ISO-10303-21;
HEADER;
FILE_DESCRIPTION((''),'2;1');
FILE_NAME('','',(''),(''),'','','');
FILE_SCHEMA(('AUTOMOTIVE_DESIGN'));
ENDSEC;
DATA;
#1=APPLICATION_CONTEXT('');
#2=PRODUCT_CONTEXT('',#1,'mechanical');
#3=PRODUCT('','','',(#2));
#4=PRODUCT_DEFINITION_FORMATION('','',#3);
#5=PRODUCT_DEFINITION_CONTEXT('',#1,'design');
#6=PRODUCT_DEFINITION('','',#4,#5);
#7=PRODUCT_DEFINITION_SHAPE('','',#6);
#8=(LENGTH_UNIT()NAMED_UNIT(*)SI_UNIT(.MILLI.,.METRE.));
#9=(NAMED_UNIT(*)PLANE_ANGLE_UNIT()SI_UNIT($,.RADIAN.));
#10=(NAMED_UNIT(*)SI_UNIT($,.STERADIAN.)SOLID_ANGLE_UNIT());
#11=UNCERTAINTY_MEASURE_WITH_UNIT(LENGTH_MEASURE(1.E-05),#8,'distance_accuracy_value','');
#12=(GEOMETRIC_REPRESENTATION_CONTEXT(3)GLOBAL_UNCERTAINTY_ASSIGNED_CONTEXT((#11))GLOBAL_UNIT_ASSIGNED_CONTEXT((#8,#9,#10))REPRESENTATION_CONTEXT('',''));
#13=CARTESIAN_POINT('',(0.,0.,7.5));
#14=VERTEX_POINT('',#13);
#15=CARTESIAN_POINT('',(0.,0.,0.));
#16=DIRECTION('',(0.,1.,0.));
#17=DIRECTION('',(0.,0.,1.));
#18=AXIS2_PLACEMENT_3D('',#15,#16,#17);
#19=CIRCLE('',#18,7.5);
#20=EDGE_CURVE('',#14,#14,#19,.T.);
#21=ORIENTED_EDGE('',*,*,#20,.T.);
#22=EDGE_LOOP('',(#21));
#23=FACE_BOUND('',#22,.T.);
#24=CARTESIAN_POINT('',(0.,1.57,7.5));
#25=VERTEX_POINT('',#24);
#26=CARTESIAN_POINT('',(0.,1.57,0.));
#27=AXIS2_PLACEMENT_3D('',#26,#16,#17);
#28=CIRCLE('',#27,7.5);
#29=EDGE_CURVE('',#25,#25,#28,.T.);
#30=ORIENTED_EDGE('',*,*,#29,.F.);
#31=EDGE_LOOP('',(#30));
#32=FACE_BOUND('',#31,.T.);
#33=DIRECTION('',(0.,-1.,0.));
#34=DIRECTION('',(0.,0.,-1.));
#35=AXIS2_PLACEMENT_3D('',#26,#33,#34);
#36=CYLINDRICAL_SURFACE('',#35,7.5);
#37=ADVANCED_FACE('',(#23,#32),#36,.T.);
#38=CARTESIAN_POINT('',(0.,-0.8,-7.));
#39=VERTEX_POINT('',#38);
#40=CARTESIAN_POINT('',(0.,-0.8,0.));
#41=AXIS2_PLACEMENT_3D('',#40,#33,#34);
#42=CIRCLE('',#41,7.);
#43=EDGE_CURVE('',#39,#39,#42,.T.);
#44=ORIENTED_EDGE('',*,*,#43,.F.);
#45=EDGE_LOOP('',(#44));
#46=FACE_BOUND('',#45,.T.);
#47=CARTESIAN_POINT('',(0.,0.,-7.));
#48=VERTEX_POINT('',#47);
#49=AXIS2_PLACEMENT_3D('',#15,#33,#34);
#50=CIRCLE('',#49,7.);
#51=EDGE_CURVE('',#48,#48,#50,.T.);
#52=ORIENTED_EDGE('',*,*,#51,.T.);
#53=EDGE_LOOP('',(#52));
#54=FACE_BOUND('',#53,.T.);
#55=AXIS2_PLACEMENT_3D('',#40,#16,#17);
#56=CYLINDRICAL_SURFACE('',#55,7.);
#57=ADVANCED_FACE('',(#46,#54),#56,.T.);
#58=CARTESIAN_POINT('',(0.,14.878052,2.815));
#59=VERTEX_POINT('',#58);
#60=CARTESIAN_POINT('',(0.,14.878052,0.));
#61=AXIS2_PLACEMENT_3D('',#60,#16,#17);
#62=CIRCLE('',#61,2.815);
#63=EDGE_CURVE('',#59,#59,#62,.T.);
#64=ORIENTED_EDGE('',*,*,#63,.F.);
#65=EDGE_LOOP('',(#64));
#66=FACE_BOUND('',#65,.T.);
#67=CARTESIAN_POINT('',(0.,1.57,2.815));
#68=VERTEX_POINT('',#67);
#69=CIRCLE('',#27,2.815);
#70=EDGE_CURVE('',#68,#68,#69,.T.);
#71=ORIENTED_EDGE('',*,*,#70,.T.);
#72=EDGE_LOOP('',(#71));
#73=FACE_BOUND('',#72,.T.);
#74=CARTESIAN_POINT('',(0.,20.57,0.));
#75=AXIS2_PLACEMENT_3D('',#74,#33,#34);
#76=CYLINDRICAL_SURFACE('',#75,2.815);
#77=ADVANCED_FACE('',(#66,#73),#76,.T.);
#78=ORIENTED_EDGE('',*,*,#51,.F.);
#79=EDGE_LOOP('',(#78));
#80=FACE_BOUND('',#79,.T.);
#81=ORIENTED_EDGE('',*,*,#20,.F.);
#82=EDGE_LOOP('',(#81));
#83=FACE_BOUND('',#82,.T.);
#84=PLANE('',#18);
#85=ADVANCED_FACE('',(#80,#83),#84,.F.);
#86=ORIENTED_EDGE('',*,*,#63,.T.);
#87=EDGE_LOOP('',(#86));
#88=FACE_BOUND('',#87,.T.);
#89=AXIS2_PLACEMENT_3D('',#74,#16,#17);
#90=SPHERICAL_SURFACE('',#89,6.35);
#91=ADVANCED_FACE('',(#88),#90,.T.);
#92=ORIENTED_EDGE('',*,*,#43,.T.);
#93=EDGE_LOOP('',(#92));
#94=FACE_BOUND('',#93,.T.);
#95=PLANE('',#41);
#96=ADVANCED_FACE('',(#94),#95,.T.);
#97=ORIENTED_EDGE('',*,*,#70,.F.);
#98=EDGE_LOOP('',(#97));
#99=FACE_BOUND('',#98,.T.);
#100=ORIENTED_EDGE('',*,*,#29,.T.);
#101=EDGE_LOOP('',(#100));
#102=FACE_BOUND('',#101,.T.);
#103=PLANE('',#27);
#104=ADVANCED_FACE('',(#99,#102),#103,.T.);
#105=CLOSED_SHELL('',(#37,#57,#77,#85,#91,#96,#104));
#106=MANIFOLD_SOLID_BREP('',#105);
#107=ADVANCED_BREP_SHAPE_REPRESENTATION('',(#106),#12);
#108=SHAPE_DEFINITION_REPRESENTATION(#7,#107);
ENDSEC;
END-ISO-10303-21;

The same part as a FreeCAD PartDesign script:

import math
import FreeCAD as App
import Part
import Sketcher

doc = App.newDocument("Part")
body = doc.addObject("PartDesign::Body", "Body")

sketch1 = body.newObject("Sketcher::SketchObject", "Sketch")
sketch1.AttachmentSupport = (doc.getObject("XZ_Plane"), [""])
sketch1.MapMode = "FlatFace"
sketch1.addGeometry(Part.Circle(App.Vector(0, 0, 0), App.Vector(0, 0, 1), 7.5), False)
sketch1.addConstraint(Sketcher.Constraint("Coincident", 0, 3, -1, 1))
sketch1.addConstraint(Sketcher.Constraint("Diameter", 0, 15.0))
pad1 = body.newObject("PartDesign::Pad", "Pad")
pad1.Profile = sketch1
pad1.Length = 1.57
pad1.Reversed = True

sketch2 = body.newObject("Sketcher::SketchObject", "Sketch001")
sketch2.AttachmentSupport = (doc.getObject("XZ_Plane"), [""])
sketch2.MapMode = "FlatFace"
sketch2.AttachmentOffset = App.Placement(App.Vector(0, 0, -1.57), App.Rotation())
sketch2.addGeometry(Part.Circle(App.Vector(0, 0, 0), App.Vector(0, 0, 1), 2.815), False)
sketch2.addConstraint(Sketcher.Constraint("Coincident", 0, 3, -1, 1))
sketch2.addConstraint(Sketcher.Constraint("Diameter", 0, 5.63))
pad2 = body.newObject("PartDesign::Pad", "Pad001")
pad2.Profile = sketch2
pad2.Length = 19
pad2.Reversed = True

sketch3 = body.newObject("Sketcher::SketchObject", "Sketch002")
sketch3.AttachmentSupport = (doc.getObject("XZ_Plane"), [""])
sketch3.MapMode = "FlatFace"
sketch3.AttachmentOffset = App.Placement(App.Vector(0, 0, -20.57), App.Rotation())
sketch3.addGeometry(Part.LineSegment(App.Vector(0, -6.35, 0), App.Vector(0, 6.35, 0)), False)
sketch3.addGeometry(Part.ArcOfCircle(Part.Circle(App.Vector(0, 0, 0), App.Vector(0, 0, 1), 6.35), math.radians(-90), math.radians(90)), False)
sketch3.addConstraint(Sketcher.Constraint("Coincident", 0, 1, 1, 1))
sketch3.addConstraint(Sketcher.Constraint("Coincident", 1, 2, 0, 2))
sketch3.addConstraint(Sketcher.Constraint("Vertical", 0))
sketch3.addConstraint(Sketcher.Constraint("Coincident", 1, 3, -1, 1))
sketch3.addConstraint(Sketcher.Constraint("PointOnObject", 0, 1, -2))
sketch3.addConstraint(Sketcher.Constraint("Radius", 1, 6.35))
revolution = body.newObject("PartDesign::Revolution", "Revolution")
revolution.Profile = sketch3
revolution.ReferenceAxis = (sketch3, ["V_Axis"])
revolution.Angle = 360

sketch4 = body.newObject("Sketcher::SketchObject", "Sketch003")
sketch4.AttachmentSupport = (doc.getObject("XZ_Plane"), [""])
sketch4.MapMode = "FlatFace"
sketch4.addGeometry(Part.Circle(App.Vector(0, 0, 0), App.Vector(0, 0, 1), 7), False)
sketch4.addConstraint(Sketcher.Constraint("Coincident", 0, 3, -1, 1))
sketch4.addConstraint(Sketcher.Constraint("Diameter", 0, 14.0))
pad3 = body.newObject("PartDesign::Pad", "Pad002")
pad3.Profile = sketch4
pad3.Length = 0.8

doc.recompute()
